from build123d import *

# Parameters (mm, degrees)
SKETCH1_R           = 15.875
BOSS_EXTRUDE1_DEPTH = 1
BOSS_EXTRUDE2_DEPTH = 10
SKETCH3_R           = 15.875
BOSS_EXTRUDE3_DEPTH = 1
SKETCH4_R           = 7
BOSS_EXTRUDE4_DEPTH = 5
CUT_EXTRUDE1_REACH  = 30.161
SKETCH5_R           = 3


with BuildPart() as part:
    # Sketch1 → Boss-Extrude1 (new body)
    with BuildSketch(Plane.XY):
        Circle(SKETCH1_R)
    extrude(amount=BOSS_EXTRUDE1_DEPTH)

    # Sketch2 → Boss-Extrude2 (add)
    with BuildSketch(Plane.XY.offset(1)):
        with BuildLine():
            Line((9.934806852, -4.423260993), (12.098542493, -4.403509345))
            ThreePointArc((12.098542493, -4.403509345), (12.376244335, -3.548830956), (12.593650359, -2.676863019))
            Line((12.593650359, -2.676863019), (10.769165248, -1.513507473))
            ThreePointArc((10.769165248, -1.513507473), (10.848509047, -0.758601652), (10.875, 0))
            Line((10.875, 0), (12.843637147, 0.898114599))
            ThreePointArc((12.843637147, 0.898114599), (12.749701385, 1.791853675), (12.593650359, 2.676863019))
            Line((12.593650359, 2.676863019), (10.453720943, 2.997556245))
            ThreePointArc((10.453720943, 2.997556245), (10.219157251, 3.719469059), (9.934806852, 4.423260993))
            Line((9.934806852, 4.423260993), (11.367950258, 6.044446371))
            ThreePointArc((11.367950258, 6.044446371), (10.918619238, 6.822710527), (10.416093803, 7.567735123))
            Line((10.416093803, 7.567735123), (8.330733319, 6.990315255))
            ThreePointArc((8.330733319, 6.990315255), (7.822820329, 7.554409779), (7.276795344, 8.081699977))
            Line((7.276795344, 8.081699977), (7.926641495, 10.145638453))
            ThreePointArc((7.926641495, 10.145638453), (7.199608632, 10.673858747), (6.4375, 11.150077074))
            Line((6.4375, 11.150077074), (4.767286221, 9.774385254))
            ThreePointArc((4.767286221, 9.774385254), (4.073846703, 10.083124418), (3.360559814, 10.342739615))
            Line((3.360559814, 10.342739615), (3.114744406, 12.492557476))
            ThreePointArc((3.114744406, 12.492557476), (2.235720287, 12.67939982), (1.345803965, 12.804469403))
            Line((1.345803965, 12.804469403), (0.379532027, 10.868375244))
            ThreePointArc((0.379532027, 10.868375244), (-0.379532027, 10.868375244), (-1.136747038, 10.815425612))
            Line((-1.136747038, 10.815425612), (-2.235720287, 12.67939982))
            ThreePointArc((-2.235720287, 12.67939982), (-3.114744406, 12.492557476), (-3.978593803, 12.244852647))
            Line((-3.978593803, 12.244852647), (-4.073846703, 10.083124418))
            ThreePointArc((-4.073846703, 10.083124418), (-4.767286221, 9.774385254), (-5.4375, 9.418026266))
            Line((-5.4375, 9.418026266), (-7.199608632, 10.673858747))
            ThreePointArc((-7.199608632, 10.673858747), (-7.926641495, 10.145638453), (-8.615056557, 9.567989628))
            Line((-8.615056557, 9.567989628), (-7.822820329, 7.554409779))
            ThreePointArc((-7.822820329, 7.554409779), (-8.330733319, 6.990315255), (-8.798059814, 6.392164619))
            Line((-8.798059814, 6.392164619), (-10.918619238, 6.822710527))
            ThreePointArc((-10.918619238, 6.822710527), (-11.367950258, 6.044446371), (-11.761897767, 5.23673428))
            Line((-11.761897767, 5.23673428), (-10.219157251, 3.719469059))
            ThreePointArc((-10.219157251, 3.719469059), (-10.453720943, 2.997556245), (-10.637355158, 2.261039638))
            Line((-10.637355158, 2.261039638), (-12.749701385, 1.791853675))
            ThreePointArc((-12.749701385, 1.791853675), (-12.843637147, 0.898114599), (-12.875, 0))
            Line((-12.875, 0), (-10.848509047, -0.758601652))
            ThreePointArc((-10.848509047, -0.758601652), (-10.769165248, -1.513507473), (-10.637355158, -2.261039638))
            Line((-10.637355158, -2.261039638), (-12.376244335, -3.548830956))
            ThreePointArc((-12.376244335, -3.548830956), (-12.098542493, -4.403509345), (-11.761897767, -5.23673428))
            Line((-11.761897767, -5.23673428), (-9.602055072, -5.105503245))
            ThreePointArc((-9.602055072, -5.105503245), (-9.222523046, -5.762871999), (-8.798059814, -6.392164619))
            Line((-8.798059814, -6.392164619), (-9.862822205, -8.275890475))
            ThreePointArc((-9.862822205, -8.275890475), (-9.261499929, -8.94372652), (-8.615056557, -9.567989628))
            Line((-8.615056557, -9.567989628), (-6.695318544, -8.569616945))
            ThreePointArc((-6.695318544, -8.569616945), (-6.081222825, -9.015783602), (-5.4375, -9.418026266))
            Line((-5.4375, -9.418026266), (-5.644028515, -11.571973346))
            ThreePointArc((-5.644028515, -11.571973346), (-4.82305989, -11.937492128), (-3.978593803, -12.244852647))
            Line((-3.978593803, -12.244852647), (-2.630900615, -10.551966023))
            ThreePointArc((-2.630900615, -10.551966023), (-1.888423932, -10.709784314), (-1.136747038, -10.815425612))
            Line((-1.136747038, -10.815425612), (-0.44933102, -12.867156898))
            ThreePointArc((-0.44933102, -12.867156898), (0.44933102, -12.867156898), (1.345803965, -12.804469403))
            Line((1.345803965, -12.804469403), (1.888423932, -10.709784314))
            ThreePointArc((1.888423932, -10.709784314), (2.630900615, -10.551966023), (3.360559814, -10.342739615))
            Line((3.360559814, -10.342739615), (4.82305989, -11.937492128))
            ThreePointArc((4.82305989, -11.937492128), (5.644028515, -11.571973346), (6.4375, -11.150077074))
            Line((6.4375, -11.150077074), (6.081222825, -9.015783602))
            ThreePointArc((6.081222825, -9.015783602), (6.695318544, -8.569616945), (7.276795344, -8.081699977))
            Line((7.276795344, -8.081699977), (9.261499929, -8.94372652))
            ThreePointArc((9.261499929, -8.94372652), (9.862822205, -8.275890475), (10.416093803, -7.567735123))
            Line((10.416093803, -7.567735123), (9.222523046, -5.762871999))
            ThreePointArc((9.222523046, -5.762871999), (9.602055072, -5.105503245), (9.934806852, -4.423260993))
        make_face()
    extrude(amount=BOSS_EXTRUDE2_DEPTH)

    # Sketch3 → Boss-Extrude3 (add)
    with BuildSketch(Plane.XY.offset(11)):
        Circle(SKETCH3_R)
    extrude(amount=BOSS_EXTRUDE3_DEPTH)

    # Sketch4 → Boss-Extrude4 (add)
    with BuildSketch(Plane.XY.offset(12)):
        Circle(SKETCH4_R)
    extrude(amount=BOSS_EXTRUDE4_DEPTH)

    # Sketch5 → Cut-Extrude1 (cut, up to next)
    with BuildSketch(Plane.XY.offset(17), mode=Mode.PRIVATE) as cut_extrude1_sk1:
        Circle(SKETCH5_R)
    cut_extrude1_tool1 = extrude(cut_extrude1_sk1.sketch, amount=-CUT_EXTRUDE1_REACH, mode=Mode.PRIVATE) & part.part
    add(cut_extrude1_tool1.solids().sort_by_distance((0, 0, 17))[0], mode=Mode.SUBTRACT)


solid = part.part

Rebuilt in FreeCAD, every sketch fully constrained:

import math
import FreeCAD as App
import Part
import Sketcher
from FreeCAD import Vector

doc = App.newDocument("Part")
params = doc.addObject("Spreadsheet::Sheet", "Params")
for row, (alias, value) in enumerate([
    ("sketch1_diameter", "31.75 mm"),
    ("pad1_length", "1 mm"),
    ("pad2_length", "10 mm"),
    ("sketch3_diameter", "31.75 mm"),
    ("pad3_length", "1 mm"),
    ("sketch4_diameter", "14 mm"),
    ("pad4_length", "5 mm"),
    ("sketch5_diameter", "6 mm"),
], start=1):
    params.set(f"A{row}", alias)
    params.set(f"B{row}", "=" + value)
    params.setAlias(f"B{row}", alias)

body = doc.addObject("PartDesign::Body", "Body")

# Sketch on XY plane
sketch1 = doc.addObject("Sketcher::SketchObject", "Sketch")
body.addObject(sketch1)
sketch1.AttachmentSupport = (doc.XY_Plane, [""])
sketch1.MapMode = "FlatFace"
sketch1.addGeometry(Part.Circle(Vector(0, 0, 0), Vector(0, 0, 1), 15.875), False)
sketch1.addConstraint([
    Sketcher.Constraint("Coincident", 0, 3, -1, 1),
    Sketcher.Constraint("Diameter", 0, 31.75),
])
sketch1.setExpression("Constraints[1]", "Params.sketch1_diameter")
pad1 = doc.addObject("PartDesign::Pad", "Pad")
body.addObject(pad1)
pad1.Profile = sketch1
pad1.setExpression("Length", "Params.pad1_length")

# Sketch on XY plane
sketch2 = doc.addObject("Sketcher::SketchObject", "Sketch001")
body.addObject(sketch2)
sketch2.AttachmentSupport = (doc.XY_Plane, [""])
sketch2.MapMode = "FlatFace"
sketch2.AttachmentOffset = App.Placement(Vector(0, 0, 1), App.Rotation())
sketch2.addGeometry([
    Part.LineSegment(Vector(9.934807, -4.423261, 0), Vector(12.098542, -4.403509, 0)),  # 0
    Part.ArcOfCircle(Part.Circle(Vector(0, 0, 0), Vector(0, 0, 1), 12.875), math.radians(-20), math.radians(-12)),  # 1
    Part.LineSegment(Vector(12.59365, -2.676863, 0), Vector(10.769165, -1.513507, 0)),  # 2
    Part.ArcOfCircle(Part.Circle(Vector(0, 0, 0), Vector(0, 0, 1), 10.875), math.radians(-8), math.radians(0)),  # 3
    Part.LineSegment(Vector(10.875, 0, 0), Vector(12.843637, 0.898115, 0)),  # 4
    Part.ArcOfCircle(Part.Circle(Vector(0, 0, 0), Vector(0, 0, 1), 12.875), math.radians(4), math.radians(12)),  # 5
    Part.LineSegment(Vector(12.59365, 2.676863, 0), Vector(10.453721, 2.997556, 0)),  # 6
    Part.ArcOfCircle(Part.Circle(Vector(0, 0, 0), Vector(0, 0, 1), 10.875), math.radians(16), math.radians(24)),  # 7
    Part.LineSegment(Vector(9.934807, 4.423261, 0), Vector(11.36795, 6.044446, 0)),  # 8
    Part.ArcOfCircle(Part.Circle(Vector(0, 0, 0), Vector(0, 0, 1), 12.875), math.radians(28), math.radians(36)),  # 9
    Part.LineSegment(Vector(10.416094, 7.567735, 0), Vector(8.330733, 6.990315, 0)),  # 10
    Part.ArcOfCircle(Part.Circle(Vector(0, 0, 0), Vector(0, 0, 1), 10.875), math.radians(40), math.radians(48)),  # 11
    Part.LineSegment(Vector(7.276795, 8.0817, 0), Vector(7.926641, 10.145638, 0)),  # 12
    Part.ArcOfCircle(Part.Circle(Vector(0, 0, 0), Vector(0, 0, 1), 12.875), math.radians(52), math.radians(60)),  # 13
    Part.LineSegment(Vector(6.4375, 11.150077, 0), Vector(4.767286, 9.774385, 0)),  # 14
    Part.ArcOfCircle(Part.Circle(Vector(0, 0, 0), Vector(0, 0, 1), 10.875), math.radians(64), math.radians(72)),  # 15
    Part.LineSegment(Vector(3.36056, 10.34274, 0), Vector(3.114744, 12.492557, 0)),  # 16
    Part.ArcOfCircle(Part.Circle(Vector(0, 0, 0), Vector(0, 0, 1), 12.875), math.radians(76), math.radians(84)),  # 17
    Part.LineSegment(Vector(1.345804, 12.804469, 0), Vector(0.379532, 10.868375, 0)),  # 18
    Part.ArcOfCircle(Part.Circle(Vector(0, 0, 0), Vector(0, 0, 1), 10.875), math.radians(88), math.radians(96)),  # 19
    Part.LineSegment(Vector(-1.136747, 10.815426, 0), Vector(-2.23572, 12.6794, 0)),  # 20
    Part.ArcOfCircle(Part.Circle(Vector(0, 0, 0), Vector(0, 0, 1), 12.875), math.radians(100), math.radians(108)),  # 21
    Part.LineSegment(Vector(-3.978594, 12.244853, 0), Vector(-4.073847, 10.083124, 0)),  # 22
    Part.ArcOfCircle(Part.Circle(Vector(0, 0, 0), Vector(0, 0, 1), 10.875), math.radians(112), math.radians(120)),  # 23
    Part.LineSegment(Vector(-5.4375, 9.418026, 0), Vector(-7.199609, 10.673859, 0)),  # 24
    Part.ArcOfCircle(Part.Circle(Vector(0, 0, 0), Vector(0, 0, 1), 12.875), math.radians(124), math.radians(132)),  # 25
    Part.LineSegment(Vector(-8.615057, 9.56799, 0), Vector(-7.82282, 7.55441, 0)),  # 26
    Part.ArcOfCircle(Part.Circle(Vector(0, 0, 0), Vector(0, 0, 1), 10.875), math.radians(136), math.radians(144)),  # 27
    Part.LineSegment(Vector(-8.79806, 6.392165, 0), Vector(-10.918619, 6.822711, 0)),  # 28
    Part.ArcOfCircle(Part.Circle(Vector(0, 0, 0), Vector(0, 0, 1), 12.875), math.radians(148), math.radians(156)),  # 29
    Part.LineSegment(Vector(-11.761898, 5.236734, 0), Vector(-10.219157, 3.719469, 0)),  # 30
    Part.ArcOfCircle(Part.Circle(Vector(0, 0, 0), Vector(0, 0, 1), 10.875), math.radians(160), math.radians(168)),  # 31
    Part.LineSegment(Vector(-10.637355, 2.26104, 0), Vector(-12.749701, 1.791854, 0)),  # 32
    Part.ArcOfCircle(Part.Circle(Vector(0, 0, 0), Vector(0, 0, 1), 12.875), math.radians(172), math.radians(180)),  # 33
    Part.LineSegment(Vector(-12.875, 0, 0), Vector(-10.848509, -0.758602, 0)),  # 34
    Part.ArcOfCircle(Part.Circle(Vector(0, 0, 0), Vector(0, 0, 1), 10.875), math.radians(-176), math.radians(-168)),  # 35
    Part.LineSegment(Vector(-10.637355, -2.26104, 0), Vector(-12.376244, -3.548831, 0)),  # 36
    Part.ArcOfCircle(Part.Circle(Vector(0, 0, 0), Vector(0, 0, 1), 12.875), math.radians(-164), math.radians(-156)),  # 37
    Part.LineSegment(Vector(-11.761898, -5.236734, 0), Vector(-9.602055, -5.105503, 0)),  # 38
    Part.ArcOfCircle(Part.Circle(Vector(0, 0, 0), Vector(0, 0, 1), 10.875), math.radians(-152), math.radians(-144)),  # 39
    Part.LineSegment(Vector(-8.79806, -6.392165, 0), Vector(-9.862822, -8.27589, 0)),  # 40
    Part.ArcOfCircle(Part.Circle(Vector(0, 0, 0), Vector(0, 0, 1), 12.875), math.radians(-140), math.radians(-132)),  # 41
    Part.LineSegment(Vector(-8.615057, -9.56799, 0), Vector(-6.695319, -8.569617, 0)),  # 42
    Part.ArcOfCircle(Part.Circle(Vector(0, 0, 0), Vector(0, 0, 1), 10.875), math.radians(-128), math.radians(-120)),  # 43
    Part.LineSegment(Vector(-5.4375, -9.418026, 0), Vector(-5.644029, -11.571973, 0)),  # 44
    Part.ArcOfCircle(Part.Circle(Vector(0, 0, 0), Vector(0, 0, 1), 12.875), math.radians(-116), math.radians(-108)),  # 45
    Part.LineSegment(Vector(-3.978594, -12.244853, 0), Vector(-2.630901, -10.551966, 0)),  # 46
    Part.ArcOfCircle(Part.Circle(Vector(0, 0, 0), Vector(0, 0, 1), 10.875), math.radians(-104), math.radians(-96)),  # 47
    Part.LineSegment(Vector(-1.136747, -10.815426, 0), Vector(-0.449331, -12.867157, 0)),  # 48
    Part.ArcOfCircle(Part.Circle(Vector(0, 0, 0), Vector(0, 0, 1), 12.875), math.radians(-92), math.radians(-84)),  # 49
    Part.LineSegment(Vector(1.345804, -12.804469, 0), Vector(1.888424, -10.709784, 0)),  # 50
    Part.ArcOfCircle(Part.Circle(Vector(0, 0, 0), Vector(0, 0, 1), 10.875), math.radians(-80), math.radians(-72)),  # 51
    Part.LineSegment(Vector(3.36056, -10.34274, 0), Vector(4.82306, -11.937492, 0)),  # 52
    Part.ArcOfCircle(Part.Circle(Vector(0, 0, 0), Vector(0, 0, 1), 12.875), math.radians(-68), math.radians(-60)),  # 53
    Part.LineSegment(Vector(6.4375, -11.150077, 0), Vector(6.081223, -9.015784, 0)),  # 54
    Part.ArcOfCircle(Part.Circle(Vector(0, 0, 0), Vector(0, 0, 1), 10.875), math.radians(-56), math.radians(-48)),  # 55
    Part.LineSegment(Vector(7.276795, -8.0817, 0), Vector(9.2615, -8.943727, 0)),  # 56
    Part.ArcOfCircle(Part.Circle(Vector(0, 0, 0), Vector(0, 0, 1), 12.875), math.radians(-44), math.radians(-36)),  # 57
    Part.LineSegment(Vector(10.416094, -7.567735, 0), Vector(9.222523, -5.762872, 0)),  # 58
    Part.ArcOfCircle(Part.Circle(Vector(0, 0, 0), Vector(0, 0, 1), 10.875), math.radians(-32), math.radians(-24)),  # 59
], False)
sketch2.addConstraint([
    Sketcher.Constraint("Coincident", 0, 2, 1, 1),
    Sketcher.Constraint("Coincident", 1, 2, 2, 1),
    Sketcher.Constraint("Coincident", 2, 2, 3, 1),
    Sketcher.Constraint("Coincident", 3, 2, 4, 1),
    Sketcher.Constraint("Coincident", 4, 2, 5, 1),
    Sketcher.Constraint("Coincident", 5, 2, 6, 1),
    Sketcher.Constraint("Coincident", 6, 2, 7, 1),
    Sketcher.Constraint("Coincident", 7, 2, 8, 1),
    Sketcher.Constraint("Coincident", 8, 2, 9, 1),
    Sketcher.Constraint("Coincident", 9, 2, 10, 1),
    Sketcher.Constraint("Coincident", 10, 2, 11, 1),
    Sketcher.Constraint("Coincident", 11, 2, 12, 1),
    Sketcher.Constraint("Coincident", 12, 2, 13, 1),
    Sketcher.Constraint("Coincident", 13, 2, 14, 1),
    Sketcher.Constraint("Coincident", 14, 2, 15, 1),
    Sketcher.Constraint("Coincident", 15, 2, 16, 1),
    Sketcher.Constraint("Coincident", 16, 2, 17, 1),
    Sketcher.Constraint("Coincident", 17, 2, 18, 1),
    Sketcher.Constraint("Coincident", 18, 2, 19, 1),
    Sketcher.Constraint("Coincident", 19, 2, 20, 1),
    Sketcher.Constraint("Coincident", 20, 2, 21, 1),
    Sketcher.Constraint("Coincident", 21, 2, 22, 1),
    Sketcher.Constraint("Coincident", 22, 2, 23, 1),
    Sketcher.Constraint("Coincident", 23, 2, 24, 1),
    Sketcher.Constraint("Coincident", 24, 2, 25, 1),
    Sketcher.Constraint("Coincident", 25, 2, 26, 1),
    Sketcher.Constraint("Coincident", 26, 2, 27, 1),
    Sketcher.Constraint("Coincident", 27, 2, 28, 1),
    Sketcher.Constraint("Coincident", 28, 2, 29, 1),
    Sketcher.Constraint("Coincident", 29, 2, 30, 1),
    Sketcher.Constraint("Coincident", 30, 2, 31, 1),
    Sketcher.Constraint("Coincident", 31, 2, 32, 1),
    Sketcher.Constraint("Coincident", 32, 2, 33, 1),
    Sketcher.Constraint("Coincident", 33, 2, 34, 1),
    Sketcher.Constraint("Coincident", 34, 2, 35, 1),
    Sketcher.Constraint("Coincident", 35, 2, 36, 1),
    Sketcher.Constraint("Coincident", 36, 2, 37, 1),
    Sketcher.Constraint("Coincident", 37, 2, 38, 1),
    Sketcher.Constraint("Coincident", 38, 2, 39, 1),
    Sketcher.Constraint("Coincident", 39, 2, 40, 1),
    Sketcher.Constraint("Coincident", 40, 2, 41, 1),
    Sketcher.Constraint("Coincident", 41, 2, 42, 1),
    Sketcher.Constraint("Coincident", 42, 2, 43, 1),
    Sketcher.Constraint("Coincident", 43, 2, 44, 1),
    Sketcher.Constraint("Coincident", 44, 2, 45, 1),
    Sketcher.Constraint("Coincident", 45, 2, 46, 1),
    Sketcher.Constraint("Coincident", 46, 2, 47, 1),
    Sketcher.Constraint("Coincident", 47, 2, 48, 1),
    Sketcher.Constraint("Coincident", 48, 2, 49, 1),
    Sketcher.Constraint("Coincident", 49, 2, 50, 1),
    Sketcher.Constraint("Coincident", 50, 2, 51, 1),
    Sketcher.Constraint("Coincident", 51, 2, 52, 1),
    Sketcher.Constraint("Coincident", 52, 2, 53, 1),
    Sketcher.Constraint("Coincident", 53, 2, 54, 1),
    Sketcher.Constraint("Coincident", 54, 2, 55, 1),
    Sketcher.Constraint("Coincident", 55, 2, 56, 1),
    Sketcher.Constraint("Coincident", 56, 2, 57, 1),
    Sketcher.Constraint("Coincident", 57, 2, 58, 1),
    Sketcher.Constraint("Coincident", 58, 2, 59, 1),
    Sketcher.Constraint("Coincident", 59, 2, 0, 1),
    Sketcher.Constraint("Coincident", 1, 3, -1, 1),
    Sketcher.Constraint("Coincident", 3, 3, -1, 1),
    Sketcher.Constraint("Coincident", 5, 3, -1, 1),
    Sketcher.Constraint("Coincident", 7, 3, -1, 1),
    Sketcher.Constraint("Coincident", 9, 3, -1, 1),
    Sketcher.Constraint("Coincident", 11, 3, -1, 1),
    Sketcher.Constraint("Coincident", 13, 3, -1, 1),
    Sketcher.Constraint("Coincident", 15, 3, -1, 1),
    Sketcher.Constraint("Coincident", 17, 3, -1, 1),
    Sketcher.Constraint("Coincident", 19, 3, -1, 1),
    Sketcher.Constraint("Coincident", 21, 3, -1, 1),
    Sketcher.Constraint("Coincident", 23, 3, -1, 1),
    Sketcher.Constraint("Coincident", 25, 3, -1, 1),
    Sketcher.Constraint("Coincident", 27, 3, -1, 1),
    Sketcher.Constraint("Coincident", 29, 3, -1, 1),
    Sketcher.Constraint("Coincident", 31, 3, -1, 1),
    Sketcher.Constraint("Coincident", 33, 3, -1, 1),
    Sketcher.Constraint("Coincident", 35, 3, -1, 1),
    Sketcher.Constraint("Coincident", 37, 3, -1, 1),
    Sketcher.Constraint("Coincident", 39, 3, -1, 1),
    Sketcher.Constraint("Coincident", 41, 3, -1, 1),
    Sketcher.Constraint("Coincident", 43, 3, -1, 1),
    Sketcher.Constraint("Coincident", 45, 3, -1, 1),
    Sketcher.Constraint("Coincident", 47, 3, -1, 1),
    Sketcher.Constraint("Coincident", 49, 3, -1, 1),
    Sketcher.Constraint("Coincident", 51, 3, -1, 1),
    Sketcher.Constraint("Coincident", 53, 3, -1, 1),
    Sketcher.Constraint("Coincident", 55, 3, -1, 1),
    Sketcher.Constraint("Coincident", 57, 3, -1, 1),
    Sketcher.Constraint("Coincident", 59, 3, -1, 1),
    Sketcher.Constraint("Equal", 1, 5),
    Sketcher.Constraint("Equal", 3, 7),
    Sketcher.Constraint("Equal", 5, 9),
    Sketcher.Constraint("Equal", 7, 11),
    Sketcher.Constraint("Equal", 9, 13),
    Sketcher.Constraint("Equal", 11, 15),
    Sketcher.Constraint("Equal", 13, 17),
    Sketcher.Constraint("Equal", 15, 19),
    Sketcher.Constraint("Equal", 17, 21),
    Sketcher.Constraint("Equal", 19, 23),
    Sketcher.Constraint("Equal", 21, 25),
    Sketcher.Constraint("Equal", 23, 27),
    Sketcher.Constraint("Equal", 25, 29),
    Sketcher.Constraint("Equal", 27, 31),
    Sketcher.Constraint("Equal", 29, 33),
    Sketcher.Constraint("Equal", 31, 35),
    Sketcher.Constraint("Equal", 33, 37),
    Sketcher.Constraint("Equal", 35, 39),
    Sketcher.Constraint("Equal", 37, 41),
    Sketcher.Constraint("Equal", 39, 43),
    Sketcher.Constraint("Equal", 41, 45),
    Sketcher.Constraint("Equal", 43, 47),
    Sketcher.Constraint("Equal", 45, 49),
    Sketcher.Constraint("Equal", 47, 51),
    Sketcher.Constraint("Equal", 49, 53),
    Sketcher.Constraint("Equal", 51, 55),
    Sketcher.Constraint("Equal", 53, 57),
    Sketcher.Constraint("Equal", 55, 59),
    Sketcher.Constraint("PointOnObject", 3, 2, -1),
    Sketcher.Constraint("PointOnObject", 33, 2, -1),
    Sketcher.Constraint("Vertical", 1, 2, 5, 2),
    Sketcher.Constraint("Vertical", 31, 2, 35, 2),
    Sketcher.Constraint("Vertical", 29, 2, 37, 2),
    Sketcher.Constraint("Vertical", 27, 2, 39, 2),
    Sketcher.Constraint("Vertical", 25, 2, 41, 2),
    Sketcher.Constraint("Vertical", 23, 2, 43, 2),
    Sketcher.Constraint("Vertical", 21, 2, 45, 2),
    Sketcher.Constraint("Vertical", 19, 2, 47, 2),
    Sketcher.Constraint("Vertical", 17, 2, 49, 2),
    Sketcher.Constraint("Vertical", 15, 2, 51, 2),
    Sketcher.Constraint("Vertical", 13, 2, 53, 2),
    Sketcher.Constraint("Vertical", 11, 2, 55, 2),
    Sketcher.Constraint("Vertical", 9, 2, 57, 2),
    Sketcher.Constraint("Vertical", 7, 2, 59, 2),
    Sketcher.Constraint("Equal", 0, 2),
    Sketcher.Constraint("Equal", 2, 4),
    Sketcher.Constraint("Equal", 4, 6),
    Sketcher.Constraint("Equal", 6, 8),
    Sketcher.Constraint("Equal", 8, 10),
    Sketcher.Constraint("Equal", 10, 12),
    Sketcher.Constraint("Equal", 12, 14),
    Sketcher.Constraint("Equal", 14, 16),
    Sketcher.Constraint("Equal", 16, 18),
    Sketcher.Constraint("Equal", 18, 20),
    Sketcher.Constraint("Equal", 20, 22),
    Sketcher.Constraint("Equal", 22, 24),
    Sketcher.Constraint("Equal", 24, 26),
    Sketcher.Constraint("Equal", 26, 28),
    Sketcher.Constraint("Equal", 28, 30),
    Sketcher.Constraint("Equal", 30, 32),
    Sketcher.Constraint("Equal", 32, 34),
    Sketcher.Constraint("Equal", 34, 36),
    Sketcher.Constraint("Equal", 36, 38),
    Sketcher.Constraint("Equal", 38, 40),
    Sketcher.Constraint("Equal", 40, 42),
    Sketcher.Constraint("Equal", 42, 44),
    Sketcher.Constraint("Equal", 44, 46),
    Sketcher.Constraint("Equal", 46, 48),
    Sketcher.Constraint("Equal", 48, 50),
    Sketcher.Constraint("Equal", 50, 52),
    Sketcher.Constraint("Equal", 52, 54),
    Sketcher.Constraint("Equal", 54, 56),
    Sketcher.Constraint("Equal", 56, 58),
    Sketcher.Constraint("Radius", 1, 12.875),
    Sketcher.Constraint("Radius", 3, 10.875),
    Sketcher.Constraint("DistanceY", -1, 1, 11, 2, 8.0817),
    Sketcher.Constraint("DistanceX", -1, 1, 13, 2, 6.4375),
    Sketcher.Constraint("DistanceY", -1, 1, 20, 2, 12.6794),
    Sketcher.Constraint("DistanceX", 23, 2, -1, 1, 5.4375),
    Sketcher.Constraint("DistanceX", 32, 2, -1, 1, 12.749701),
    Sketcher.Constraint("DistanceY", 34, 2, -1, 1, 0.758602),
    Sketcher.Constraint("DistanceX", 46, 2, -1, 1, 2.630901),
    Sketcher.Constraint("DistanceY", 0, 2, -1, 1, 4.403509),
    Sketcher.Constraint("DistanceX", -1, 1, 1, 2, 12.59365),
    Sketcher.Constraint("DistanceX", -1, 1, 15, 2, 3.36056),
    Sketcher.Constraint("DistanceY", -1, 1, 17, 2, 12.804469),
    Sketcher.Constraint("DistanceY", -1, 1, 25, 2, 9.56799),
    Sketcher.Constraint("DistanceX", 27, 2, -1, 1, 8.79806),
    Sketcher.Constraint("DistanceY", -1, 1, 30, 2, 3.719469),
    Sketcher.Constraint("DistanceY", 58, 2, -1, 1, 5.762872),
])
pad2 = doc.addObject("PartDesign::Pad", "Pad001")
body.addObject(pad2)
pad2.Profile = sketch2
pad2.setExpression("Length", "Params.pad2_length")

# Sketch on XY plane
sketch3 = doc.addObject("Sketcher::SketchObject", "Sketch002")
body.addObject(sketch3)
sketch3.AttachmentSupport = (doc.XY_Plane, [""])
sketch3.MapMode = "FlatFace"
sketch3.AttachmentOffset = App.Placement(Vector(0, 0, 11), App.Rotation())
sketch3.addGeometry(Part.Circle(Vector(0, 0, 0), Vector(0, 0, 1), 15.875), False)
sketch3.addConstraint([
    Sketcher.Constraint("Coincident", 0, 3, -1, 1),
    Sketcher.Constraint("Diameter", 0, 31.75),
])
sketch3.setExpression("Constraints[1]", "Params.sketch3_diameter")
pad3 = doc.addObject("PartDesign::Pad", "Pad002")
body.addObject(pad3)
pad3.Profile = sketch3
pad3.setExpression("Length", "Params.pad3_length")

# Sketch on XY plane
sketch4 = doc.addObject("Sketcher::SketchObject", "Sketch003")
body.addObject(sketch4)
sketch4.AttachmentSupport = (doc.XY_Plane, [""])
sketch4.MapMode = "FlatFace"
sketch4.AttachmentOffset = App.Placement(Vector(0, 0, 12), App.Rotation())
sketch4.addGeometry(Part.Circle(Vector(0, 0, 0), Vector(0, 0, 1), 7), False)
sketch4.addConstraint([
    Sketcher.Constraint("Coincident", 0, 3, -1, 1),
    Sketcher.Constraint("Diameter", 0, 14.0),
])
sketch4.setExpression("Constraints[1]", "Params.sketch4_diameter")
pad4 = doc.addObject("PartDesign::Pad", "Pad003")
body.addObject(pad4)
pad4.Profile = sketch4
pad4.setExpression("Length", "Params.pad4_length")

# Sketch on XY plane
sketch5 = doc.addObject("Sketcher::SketchObject", "Sketch004")
body.addObject(sketch5)
sketch5.AttachmentSupport = (doc.XY_Plane, [""])
sketch5.MapMode = "FlatFace"
sketch5.AttachmentOffset = App.Placement(Vector(0, 0, 17), App.Rotation())
sketch5.addGeometry(Part.Circle(Vector(0, 0, 0), Vector(0, 0, 1), 3), False)
sketch5.addConstraint([
    Sketcher.Constraint("Coincident", 0, 3, -1, 1),
    Sketcher.Constraint("Diameter", 0, 6.0),
])
sketch5.setExpression("Constraints[1]", "Params.sketch5_diameter")
pocket1 = doc.addObject("PartDesign::Pocket", "Pocket")
body.addObject(pocket1)
pocket1.Profile = sketch5
pocket1.Type = "UpToFirst"

doc.recompute()
